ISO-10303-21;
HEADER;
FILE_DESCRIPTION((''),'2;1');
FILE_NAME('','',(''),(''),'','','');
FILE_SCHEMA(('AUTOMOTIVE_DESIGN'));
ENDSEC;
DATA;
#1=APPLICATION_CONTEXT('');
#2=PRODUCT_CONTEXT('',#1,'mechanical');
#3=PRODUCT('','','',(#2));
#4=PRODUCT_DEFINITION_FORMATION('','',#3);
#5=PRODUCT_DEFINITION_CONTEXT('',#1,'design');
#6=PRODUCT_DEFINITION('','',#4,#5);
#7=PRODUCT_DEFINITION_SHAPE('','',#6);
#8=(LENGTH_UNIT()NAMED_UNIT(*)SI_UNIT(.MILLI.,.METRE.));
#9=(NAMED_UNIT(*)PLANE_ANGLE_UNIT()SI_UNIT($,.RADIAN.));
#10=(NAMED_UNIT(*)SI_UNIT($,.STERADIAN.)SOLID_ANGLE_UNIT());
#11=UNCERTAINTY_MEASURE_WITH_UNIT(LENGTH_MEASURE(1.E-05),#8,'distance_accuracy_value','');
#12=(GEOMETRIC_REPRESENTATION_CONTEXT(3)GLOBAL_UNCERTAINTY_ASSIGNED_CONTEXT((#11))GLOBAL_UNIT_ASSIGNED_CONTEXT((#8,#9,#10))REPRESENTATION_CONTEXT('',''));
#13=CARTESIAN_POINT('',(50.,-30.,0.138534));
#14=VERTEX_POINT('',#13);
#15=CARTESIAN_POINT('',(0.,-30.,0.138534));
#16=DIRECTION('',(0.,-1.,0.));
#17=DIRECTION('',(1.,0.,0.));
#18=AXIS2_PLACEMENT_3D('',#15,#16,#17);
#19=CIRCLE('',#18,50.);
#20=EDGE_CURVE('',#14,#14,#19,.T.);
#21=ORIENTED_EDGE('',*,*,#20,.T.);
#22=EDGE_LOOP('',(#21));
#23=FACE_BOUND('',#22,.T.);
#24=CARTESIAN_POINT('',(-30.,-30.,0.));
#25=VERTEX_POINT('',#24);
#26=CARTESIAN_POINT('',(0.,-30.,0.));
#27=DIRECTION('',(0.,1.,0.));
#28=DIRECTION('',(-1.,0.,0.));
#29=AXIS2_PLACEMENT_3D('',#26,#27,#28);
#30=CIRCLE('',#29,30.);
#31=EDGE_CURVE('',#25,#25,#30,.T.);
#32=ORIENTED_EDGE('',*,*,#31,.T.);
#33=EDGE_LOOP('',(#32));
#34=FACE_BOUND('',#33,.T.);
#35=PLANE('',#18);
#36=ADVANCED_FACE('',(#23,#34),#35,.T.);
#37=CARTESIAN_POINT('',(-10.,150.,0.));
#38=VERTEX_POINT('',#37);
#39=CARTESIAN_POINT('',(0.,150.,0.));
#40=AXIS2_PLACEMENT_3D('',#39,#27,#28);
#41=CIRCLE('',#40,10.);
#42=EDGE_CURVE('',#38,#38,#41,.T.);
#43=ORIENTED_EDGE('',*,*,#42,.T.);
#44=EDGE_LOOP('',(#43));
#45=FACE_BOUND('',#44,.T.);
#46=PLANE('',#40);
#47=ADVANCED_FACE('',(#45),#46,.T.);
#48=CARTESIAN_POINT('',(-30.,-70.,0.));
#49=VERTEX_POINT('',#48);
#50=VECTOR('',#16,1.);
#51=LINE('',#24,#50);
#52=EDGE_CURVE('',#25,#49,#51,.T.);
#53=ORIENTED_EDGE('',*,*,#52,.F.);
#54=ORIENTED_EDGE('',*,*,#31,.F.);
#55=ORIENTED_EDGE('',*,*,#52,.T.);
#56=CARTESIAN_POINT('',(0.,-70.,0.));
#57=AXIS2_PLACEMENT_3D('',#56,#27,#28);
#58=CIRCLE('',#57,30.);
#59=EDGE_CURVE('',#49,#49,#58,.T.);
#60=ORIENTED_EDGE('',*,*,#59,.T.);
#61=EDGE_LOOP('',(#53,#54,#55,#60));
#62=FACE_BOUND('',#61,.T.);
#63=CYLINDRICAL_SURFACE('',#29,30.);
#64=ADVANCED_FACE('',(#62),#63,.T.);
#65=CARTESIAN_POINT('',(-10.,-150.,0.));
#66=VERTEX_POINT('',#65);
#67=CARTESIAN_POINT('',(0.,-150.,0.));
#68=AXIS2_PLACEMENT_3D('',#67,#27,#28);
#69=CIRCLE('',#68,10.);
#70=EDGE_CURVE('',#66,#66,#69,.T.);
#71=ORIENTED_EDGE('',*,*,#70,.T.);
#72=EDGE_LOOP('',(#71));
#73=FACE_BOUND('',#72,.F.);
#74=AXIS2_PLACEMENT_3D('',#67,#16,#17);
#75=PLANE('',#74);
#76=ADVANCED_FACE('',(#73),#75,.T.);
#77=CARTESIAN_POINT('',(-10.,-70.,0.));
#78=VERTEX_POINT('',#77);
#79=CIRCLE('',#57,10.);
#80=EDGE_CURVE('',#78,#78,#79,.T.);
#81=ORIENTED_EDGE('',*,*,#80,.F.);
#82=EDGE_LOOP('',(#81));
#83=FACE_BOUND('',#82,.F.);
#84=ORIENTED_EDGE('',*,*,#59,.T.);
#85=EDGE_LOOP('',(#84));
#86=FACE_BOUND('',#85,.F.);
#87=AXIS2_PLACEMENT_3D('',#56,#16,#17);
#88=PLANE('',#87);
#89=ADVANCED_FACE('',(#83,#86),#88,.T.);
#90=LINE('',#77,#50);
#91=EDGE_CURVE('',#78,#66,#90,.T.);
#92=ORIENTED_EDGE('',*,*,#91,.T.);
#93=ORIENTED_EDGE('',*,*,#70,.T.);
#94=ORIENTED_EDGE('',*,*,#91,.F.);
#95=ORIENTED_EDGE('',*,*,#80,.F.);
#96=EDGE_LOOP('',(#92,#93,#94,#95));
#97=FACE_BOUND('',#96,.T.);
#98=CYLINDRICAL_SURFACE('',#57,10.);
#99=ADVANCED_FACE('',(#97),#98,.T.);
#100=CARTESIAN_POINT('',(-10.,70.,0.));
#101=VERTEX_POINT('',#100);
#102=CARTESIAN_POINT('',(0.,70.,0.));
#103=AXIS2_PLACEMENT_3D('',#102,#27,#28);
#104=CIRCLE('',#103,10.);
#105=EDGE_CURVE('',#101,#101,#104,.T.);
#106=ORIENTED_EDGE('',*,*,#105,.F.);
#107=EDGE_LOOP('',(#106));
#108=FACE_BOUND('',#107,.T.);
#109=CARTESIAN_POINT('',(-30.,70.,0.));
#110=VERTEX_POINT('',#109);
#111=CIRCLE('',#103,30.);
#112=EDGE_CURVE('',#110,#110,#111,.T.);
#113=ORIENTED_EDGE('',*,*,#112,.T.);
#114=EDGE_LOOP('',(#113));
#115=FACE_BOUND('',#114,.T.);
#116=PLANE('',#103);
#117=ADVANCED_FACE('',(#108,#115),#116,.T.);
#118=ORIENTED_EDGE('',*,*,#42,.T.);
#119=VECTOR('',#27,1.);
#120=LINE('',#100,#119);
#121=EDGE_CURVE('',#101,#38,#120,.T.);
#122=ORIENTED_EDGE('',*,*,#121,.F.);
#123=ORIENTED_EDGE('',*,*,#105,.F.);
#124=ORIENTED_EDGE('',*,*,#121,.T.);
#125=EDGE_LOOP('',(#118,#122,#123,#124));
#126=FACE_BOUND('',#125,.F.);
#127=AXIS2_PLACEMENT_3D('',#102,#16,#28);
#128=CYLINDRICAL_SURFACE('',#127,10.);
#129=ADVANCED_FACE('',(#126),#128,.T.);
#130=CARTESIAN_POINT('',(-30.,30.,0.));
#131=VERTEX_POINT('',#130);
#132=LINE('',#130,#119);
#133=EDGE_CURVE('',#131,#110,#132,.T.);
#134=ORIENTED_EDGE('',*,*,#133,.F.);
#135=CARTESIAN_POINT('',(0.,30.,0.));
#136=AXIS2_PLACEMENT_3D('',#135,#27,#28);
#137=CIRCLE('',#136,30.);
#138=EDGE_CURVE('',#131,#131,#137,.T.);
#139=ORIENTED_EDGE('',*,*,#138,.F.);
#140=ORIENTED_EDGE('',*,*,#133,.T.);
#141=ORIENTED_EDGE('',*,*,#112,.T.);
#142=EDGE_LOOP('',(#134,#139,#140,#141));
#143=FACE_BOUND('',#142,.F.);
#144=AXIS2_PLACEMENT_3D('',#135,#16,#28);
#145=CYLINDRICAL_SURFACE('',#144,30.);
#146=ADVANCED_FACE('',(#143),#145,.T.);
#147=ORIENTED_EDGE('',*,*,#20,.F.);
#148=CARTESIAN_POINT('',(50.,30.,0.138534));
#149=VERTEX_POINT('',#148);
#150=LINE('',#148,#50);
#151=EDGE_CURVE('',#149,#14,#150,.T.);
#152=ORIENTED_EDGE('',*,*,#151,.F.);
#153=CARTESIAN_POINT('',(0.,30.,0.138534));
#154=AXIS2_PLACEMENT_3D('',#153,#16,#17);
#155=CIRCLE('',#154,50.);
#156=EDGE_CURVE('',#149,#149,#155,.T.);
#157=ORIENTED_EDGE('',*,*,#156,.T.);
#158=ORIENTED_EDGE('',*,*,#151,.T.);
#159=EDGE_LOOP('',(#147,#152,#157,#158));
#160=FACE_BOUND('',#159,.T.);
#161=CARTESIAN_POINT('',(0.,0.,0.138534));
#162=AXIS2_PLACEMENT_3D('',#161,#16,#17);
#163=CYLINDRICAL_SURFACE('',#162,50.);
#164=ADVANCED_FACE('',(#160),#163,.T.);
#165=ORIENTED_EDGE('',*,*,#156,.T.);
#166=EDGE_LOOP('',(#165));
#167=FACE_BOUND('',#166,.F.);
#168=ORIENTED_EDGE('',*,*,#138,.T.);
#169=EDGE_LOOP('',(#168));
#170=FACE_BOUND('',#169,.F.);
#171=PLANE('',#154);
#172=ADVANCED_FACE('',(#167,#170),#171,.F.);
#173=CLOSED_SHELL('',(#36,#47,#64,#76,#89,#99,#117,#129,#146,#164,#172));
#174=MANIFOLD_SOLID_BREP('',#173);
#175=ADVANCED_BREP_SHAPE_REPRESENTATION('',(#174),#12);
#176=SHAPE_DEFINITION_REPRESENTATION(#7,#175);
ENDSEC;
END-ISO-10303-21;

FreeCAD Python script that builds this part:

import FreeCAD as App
import Part
import Sketcher
from FreeCAD import Vector
Q = App.Units.Quantity

doc = App.newDocument("Part")
body = doc.addObject("PartDesign::Body", "Body")

# Sketch on XZ plane
sketch1 = body.newObject("Sketcher::SketchObject", "Sketch")
sketch1.AttachmentSupport = (doc.getObject("XZ_Plane"), [""])
sketch1.MapMode = "FlatFace"
sketch1.addGeometry(Part.Circle(Vector(0, 0, 0), Vector(0, 0, 1), 50), False)
sketch1.addConstraint([
    Sketcher.Constraint("PointOnObject", 0, 3, -2),
    Sketcher.Constraint("Diameter", 0, Q("100 mm")),
    Sketcher.Constraint("DistanceY", -1, 1, 0, 3, Q("0.138534 mm")),
])
pad1 = body.newObject("PartDesign::Pad", "Pad")
pad1.Profile = sketch1
pad1.Length = 60
pad1.Midplane = True

# Sketch on XZ plane
sketch2 = body.newObject("Sketcher::SketchObject", "Sketch001")
sketch2.AttachmentSupport = (doc.getObject("XZ_Plane"), [""])
sketch2.MapMode = "FlatFace"
sketch2.AttachmentOffset = App.Placement(Vector(0, 0, -30), App.Rotation())
sketch2.addGeometry(Part.Circle(Vector(0, 0, 0), Vector(0, 0, 1), 30), False)
sketch2.addConstraint([
    Sketcher.Constraint("Coincident", 0, 3, -1, 1),
    Sketcher.Constraint("Diameter", 0, Q("60 mm")),
])
pad2 = body.newObject("PartDesign::Pad", "Pad001")
pad2.Profile = sketch2
pad2.Length = 40
pad2.Reversed = True

# Sketch on XZ plane
sketch3 = body.newObject("Sketcher::SketchObject", "Sketch002")
sketch3.AttachmentSupport = (doc.getObject("XZ_Plane"), [""])
sketch3.MapMode = "FlatFace"
sketch3.AttachmentOffset = App.Placement(Vector(0, 0, -70), App.Rotation())
sketch3.addGeometry(Part.Circle(Vector(0, 0, 0), Vector(0, 0, 1), 10), False)
sketch3.addConstraint([
    Sketcher.Constraint("Coincident", 0, 3, -1, 1),
    Sketcher.Constraint("Diameter", 0, Q("20 mm")),
])
pad3 = body.newObject("PartDesign::Pad", "Pad002")
pad3.Profile = sketch3
pad3.Length = 80
pad3.Reversed = True
body2 = doc.addObject("PartDesign::Body", "Body001")
doc.recompute()

body2.BaseFeature = body
doc.recompute()

mirroring = doc.addObject("Part::Mirroring", "Mirroring")
mirroring.Source = body
mirroring.Base = Vector(0, 0, 0)
mirroring.Normal = Vector(0, -1, 0)
body3 = doc.addObject("PartDesign::Body", "Body002")
body3.BaseFeature = mirroring
boolean = body2.newObject("PartDesign::Boolean", "Boolean")
boolean.Type = "Fuse"
boolean.addObjects([body3])
doc.recompute()
mirroring.Visibility = False

doc.recompute()
